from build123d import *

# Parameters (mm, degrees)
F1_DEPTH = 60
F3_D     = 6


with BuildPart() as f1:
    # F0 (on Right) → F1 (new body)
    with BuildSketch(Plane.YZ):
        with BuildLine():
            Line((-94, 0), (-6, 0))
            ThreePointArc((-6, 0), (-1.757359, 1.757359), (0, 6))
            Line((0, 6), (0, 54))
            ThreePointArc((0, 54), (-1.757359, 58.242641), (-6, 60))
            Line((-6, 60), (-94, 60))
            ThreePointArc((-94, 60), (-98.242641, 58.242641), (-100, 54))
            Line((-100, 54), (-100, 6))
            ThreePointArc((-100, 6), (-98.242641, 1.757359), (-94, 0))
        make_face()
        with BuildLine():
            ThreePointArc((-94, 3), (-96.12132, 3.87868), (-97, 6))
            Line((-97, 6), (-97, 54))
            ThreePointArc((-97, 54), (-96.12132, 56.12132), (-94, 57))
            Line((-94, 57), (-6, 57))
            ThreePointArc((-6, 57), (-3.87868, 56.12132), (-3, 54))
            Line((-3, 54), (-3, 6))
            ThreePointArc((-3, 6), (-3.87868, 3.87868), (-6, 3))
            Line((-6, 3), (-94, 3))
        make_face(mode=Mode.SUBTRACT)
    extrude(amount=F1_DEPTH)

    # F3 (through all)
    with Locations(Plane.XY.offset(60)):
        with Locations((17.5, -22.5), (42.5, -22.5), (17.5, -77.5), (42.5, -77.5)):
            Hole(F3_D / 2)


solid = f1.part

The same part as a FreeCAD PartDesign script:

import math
import FreeCAD as App
import Part
import Sketcher

doc = App.newDocument("Part")
params = doc.addObject("Spreadsheet::Sheet", "Params")
for row, (alias, value) in enumerate([
    ("sketch1_radius", "5.999999 mm"),
    ("sketch1_radius2", "3.000001 mm"),
    ("sketch1_width", "88 mm"),
    ("sketch1_height", "48 mm"),
    ("pad1_length", "60 mm"),
    ("sketch2_diameter", "6 mm"),
    ("hole_diameter", "6 mm"),
], start=1):
    params.set(f"A{row}", alias)
    params.set(f"B{row}", "=" + value)
    params.setAlias(f"B{row}", alias)

body = doc.addObject("PartDesign::Body", "Body")

# Sketch on YZ plane
sketch1 = doc.addObject("Sketcher::SketchObject", "Sketch")
body.addObject(sketch1)
sketch1.AttachmentSupport = (doc.YZ_Plane, [""])
sketch1.MapMode = "FlatFace"
sketch1.addGeometry([
    Part.LineSegment(App.Vector(-94, 0, 0), App.Vector(-6, 0, 0)),  # 0
    Part.ArcOfCircle(Part.Circle(App.Vector(-6, 6, 0), App.Vector(0, 0, 1), 6), math.radians(-90), math.radians(0)),  # 1
    Part.LineSegment(App.Vector(0, 6, 0), App.Vector(0, 54, 0)),  # 2
    Part.ArcOfCircle(Part.Circle(App.Vector(-6, 54, 0), App.Vector(0, 0, 1), 6), math.radians(0), math.radians(90)),  # 3
    Part.LineSegment(App.Vector(-6, 60, 0), App.Vector(-94, 60, 0)),  # 4
    Part.ArcOfCircle(Part.Circle(App.Vector(-94, 54, 0), App.Vector(0, 0, 1), 6), math.radians(90), math.radians(180)),  # 5
    Part.LineSegment(App.Vector(-100, 54, 0), App.Vector(-100, 6, 0)),  # 6
    Part.ArcOfCircle(Part.Circle(App.Vector(-94, 6, 0), App.Vector(0, 0, 1), 6), math.radians(180), math.radians(270)),  # 7
    Part.LineSegment(App.Vector(-6, 3, 0), App.Vector(-94, 3, 0)),  # 8
    Part.ArcOfCircle(Part.Circle(App.Vector(-94, 6, 0), App.Vector(0, 0, 1), 3), math.radians(-180), math.radians(-90)),  # 9
    Part.LineSegment(App.Vector(-97, 6, 0), App.Vector(-97, 54, 0)),  # 10
    Part.ArcOfCircle(Part.Circle(App.Vector(-94, 54, 0), App.Vector(0, 0, 1), 3), math.radians(90), math.radians(180)),  # 11
    Part.LineSegment(App.Vector(-94, 57, 0), App.Vector(-6, 57, 0)),  # 12
    Part.ArcOfCircle(Part.Circle(App.Vector(-6, 54, 0), App.Vector(0, 0, 1), 3), math.radians(0), math.radians(90)),  # 13
    Part.LineSegment(App.Vector(-3, 54, 0), App.Vector(-3, 6, 0)),  # 14
    Part.ArcOfCircle(Part.Circle(App.Vector(-6, 6, 0), App.Vector(0, 0, 1), 3), math.radians(-90), math.radians(0)),  # 15
], False)
sketch1.addConstraint([
    Sketcher.Constraint("Tangent", 0, 2, 1, 1),
    Sketcher.Constraint("Tangent", 1, 2, 2, 1),
    Sketcher.Constraint("Tangent", 2, 2, 3, 1),
    Sketcher.Constraint("Tangent", 3, 2, 4, 1),
    Sketcher.Constraint("Tangent", 4, 2, 5, 1),
    Sketcher.Constraint("Tangent", 5, 2, 6, 1),
    Sketcher.Constraint("Tangent", 6, 2, 7, 1),
    Sketcher.Constraint("Tangent", 7, 2, 0, 1),
    Sketcher.Constraint("Tangent", 8, 2, 9, 2),
    Sketcher.Constraint("Tangent", 9, 1, 10, 1),
    Sketcher.Constraint("Tangent", 10, 2, 11, 2),
    Sketcher.Constraint("Tangent", 11, 1, 12, 1),
    Sketcher.Constraint("Tangent", 12, 2, 13, 2),
    Sketcher.Constraint("Tangent", 13, 1, 14, 1),
    Sketcher.Constraint("Tangent", 14, 2, 15, 2),
    Sketcher.Constraint("Tangent", 15, 1, 8, 1),
    Sketcher.Constraint("Horizontal", 0),
    Sketcher.Constraint("Vertical", 2),
    Sketcher.Constraint("Horizontal", 4),
    Sketcher.Constraint("Vertical", 6),
    Sketcher.Constraint("Horizontal", 8),
    Sketcher.Constraint("Vertical", 10),
    Sketcher.Constraint("Horizontal", 12),
    Sketcher.Constraint("Vertical", 14),
    Sketcher.Constraint("Coincident", 9, 3, 7, 3),
    Sketcher.Constraint("Coincident", 11, 3, 5, 3),
    Sketcher.Constraint("Coincident", 13, 3, 3, 3),
    Sketcher.Constraint("Equal", 1, 3),
    Sketcher.Constraint("Equal", 3, 5),
    Sketcher.Constraint("Equal", 5, 7),
    Sketcher.Constraint("Equal", 13, 15),
    Sketcher.Constraint("PointOnObject", 0, 2, -1),
    Sketcher.Constraint("PointOnObject", 1, 2, -2),
    Sketcher.Constraint("Radius", 1, 5.999999),
    Sketcher.Constraint("Radius", 9, 3.000001),
    Sketcher.Constraint("DistanceX", 0, 1, 0, 2, 88.0),
    Sketcher.Constraint("DistanceY", 2, 1, 2, 2, 48.0),
])
sketch1.setExpression("Constraints[33]", "Params.sketch1_radius")
sketch1.setExpression("Constraints[34]", "Params.sketch1_radius2")
sketch1.setExpression("Constraints[35]", "Params.sketch1_width")
sketch1.setExpression("Constraints[36]", "Params.sketch1_height")
pad1 = doc.addObject("PartDesign::Pad", "Pad")
body.addObject(pad1)
pad1.Profile = sketch1
pad1.setExpression("Length", "Params.pad1_length")

# Sketch on XY plane
sketch2 = doc.addObject("Sketcher::SketchObject", "Sketch001")
body.addObject(sketch2)
sketch2.AttachmentSupport = (doc.XY_Plane, [""])
sketch2.MapMode = "FlatFace"
sketch2.AttachmentOffset = App.Placement(App.Vector(0, 0, 60), App.Rotation())
sketch2.addGeometry([
    Part.Circle(App.Vector(17.5, -22.5, 0), App.Vector(0, 0, 1), 3),
    Part.Circle(App.Vector(42.5, -22.5, 0), App.Vector(0, 0, 1), 3),
    Part.Circle(App.Vector(17.5, -77.5, 0), App.Vector(0, 0, 1), 3),
    Part.Circle(App.Vector(42.5, -77.5, 0), App.Vector(0, 0, 1), 3),
], False)
sketch2.addConstraint([
    Sketcher.Constraint("Equal", 0, 1),
    Sketcher.Constraint("Equal", 1, 2),
    Sketcher.Constraint("Equal", 2, 3),
    Sketcher.Constraint("Horizontal", 0, 3, 1, 3),
    Sketcher.Constraint("Horizontal", 2, 3, 3, 3),
    Sketcher.Constraint("Vertical", 0, 3, 2, 3),
    Sketcher.Constraint("Vertical", 1, 3, 3, 3),
    Sketcher.Constraint("Diameter", 0, 6.0),
    Sketcher.Constraint("DistanceX", 0, 3, 1, 3, 25.0),
    Sketcher.Constraint("DistanceY", 2, 3, 0, 3, 55.0),
    Sketcher.Constraint("DistanceX", -1, 1, 0, 3, 17.5),
    Sketcher.Constraint("DistanceY", 0, 3, -1, 1, 22.5),
])
sketch2.setExpression("Constraints[7]", "Params.sketch2_diameter")
doc.recompute()
hole = doc.addObject("PartDesign::Hole", "Hole")
body.addObject(hole)
hole.Profile = sketch2
hole.ThreadType = "None"
hole.setExpression("Diameter", "Params.hole_diameter")
hole.DepthType = "ThroughAll"

doc.recompute()
